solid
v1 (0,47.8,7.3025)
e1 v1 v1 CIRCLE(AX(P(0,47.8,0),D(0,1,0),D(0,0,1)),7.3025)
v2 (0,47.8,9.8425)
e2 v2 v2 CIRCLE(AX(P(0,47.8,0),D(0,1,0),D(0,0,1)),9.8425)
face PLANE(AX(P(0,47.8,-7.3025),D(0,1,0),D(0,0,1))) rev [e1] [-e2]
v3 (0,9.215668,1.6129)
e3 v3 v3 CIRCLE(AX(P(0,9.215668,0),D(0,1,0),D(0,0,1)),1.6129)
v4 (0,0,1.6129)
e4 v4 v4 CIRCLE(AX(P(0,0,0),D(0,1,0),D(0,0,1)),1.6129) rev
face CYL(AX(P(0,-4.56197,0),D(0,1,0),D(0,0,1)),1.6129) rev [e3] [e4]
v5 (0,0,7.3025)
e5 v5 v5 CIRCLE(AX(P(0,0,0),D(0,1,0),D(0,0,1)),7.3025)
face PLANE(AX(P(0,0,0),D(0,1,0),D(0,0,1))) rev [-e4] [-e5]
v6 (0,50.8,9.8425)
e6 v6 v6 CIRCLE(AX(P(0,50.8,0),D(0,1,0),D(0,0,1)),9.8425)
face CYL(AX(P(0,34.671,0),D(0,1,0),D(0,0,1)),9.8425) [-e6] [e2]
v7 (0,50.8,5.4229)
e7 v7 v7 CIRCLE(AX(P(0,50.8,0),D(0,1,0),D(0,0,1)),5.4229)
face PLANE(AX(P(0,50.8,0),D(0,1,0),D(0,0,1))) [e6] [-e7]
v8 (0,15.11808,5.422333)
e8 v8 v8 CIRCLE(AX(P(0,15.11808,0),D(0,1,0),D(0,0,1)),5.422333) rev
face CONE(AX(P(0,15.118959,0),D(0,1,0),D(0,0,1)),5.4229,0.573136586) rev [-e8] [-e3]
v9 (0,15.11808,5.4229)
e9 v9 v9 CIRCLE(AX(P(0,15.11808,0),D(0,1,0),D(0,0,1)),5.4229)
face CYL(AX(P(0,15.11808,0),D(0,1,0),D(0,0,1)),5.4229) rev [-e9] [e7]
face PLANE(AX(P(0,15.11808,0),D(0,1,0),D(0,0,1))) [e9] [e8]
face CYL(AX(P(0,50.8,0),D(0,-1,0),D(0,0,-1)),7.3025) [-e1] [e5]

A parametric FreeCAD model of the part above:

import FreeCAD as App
import Part
import Sketcher
Q = App.Units.Quantity

doc = App.newDocument("Part")
body = doc.addObject("PartDesign::Body", "Body")

# Sketch on XZ plane
sketch1 = doc.addObject("Sketcher::SketchObject", "Sketch")
body.addObject(sketch1)
sketch1.AttachmentSupport = (doc.XZ_Plane, [""])
sketch1.MapMode = "FlatFace"
sketch1.addGeometry(Part.Circle(App.Vector(0, 0, 0), App.Vector(0, 0, 1), 7), False)
sketch1.addConstraint([
    Sketcher.Constraint("Coincident", 0, 3, -1, 1),
    Sketcher.Constraint("Diameter", 0, Q("0.575 in")),
])
pad1 = doc.addObject("PartDesign::Pad", "Pad")
body.addObject(pad1)
pad1.Profile = sketch1
pad1.Length = Q("2 in")
pad1.Reversed = True

# Sketch on XZ plane
sketch2 = doc.addObject("Sketcher::SketchObject", "Sketch001")
body.addObject(sketch2)
sketch2.AttachmentSupport = (doc.XZ_Plane, [""])
sketch2.MapMode = "FlatFace"
sketch2.AttachmentOffset = App.Placement(App.Vector(0, 0, -2 * 25.4), App.Rotation())
sketch2.addGeometry(Part.Circle(App.Vector(0, 0, 0), App.Vector(0, 0, 1), 1.6), False)
sketch2.addConstraint([
    Sketcher.Constraint("Coincident", 0, 3, -1, 1),
    Sketcher.Constraint("Diameter", 0, Q("0.127 in")),
])
pocket1 = doc.addObject("PartDesign::Pocket", "Pocket")
body.addObject(pocket1)
pocket1.Profile = sketch2
pocket1.Length = Q("2 in")
pocket1.Reversed = True

# Sketch on XY plane
sketch3 = doc.addObject("Sketcher::SketchObject", "Sketch002")
body.addObject(sketch3)
sketch3.AttachmentSupport = (doc.XY_Plane, [""])
sketch3.MapMode = "FlatFace"
sketch3.addGeometry([
    Part.LineSegment(App.Vector(-5.4, 15.1, 0), App.Vector(-1.6, 9.2, 0)),
    Part.LineSegment(App.Vector(-1.6, 9.2, 0), App.Vector(-1.6, 15.1, 0)),
    Part.LineSegment(App.Vector(-1.6, 15.1, 0), App.Vector(-5.4, 15.1, 0)),
], False)
sketch3.addConstraint([
    Sketcher.Constraint("Coincident", 0, 2, 1, 1),
    Sketcher.Constraint("Coincident", 1, 2, 2, 1),
    Sketcher.Constraint("Coincident", 2, 2, 0, 1),
    Sketcher.Constraint("Vertical", 1),
    Sketcher.Constraint("Horizontal", 2),
    Sketcher.Constraint("DistanceX", 2, 2, 2, 1, Q("0.15 in")),
    Sketcher.Constraint("DistanceX", 0, 2, -1, 1, Q("0.0635 in")),
    Sketcher.Constraint("DistanceY", 1, 1, 1, 2, Q("5.903291 mm")),
    Sketcher.Constraint("DistanceY", -1, 1, 0, 2, Q("9.215668 mm")),
])
groove = doc.addObject("PartDesign::Groove", "Groove")
body.addObject(groove)
groove.Profile = sketch3
groove.ReferenceAxis = (sketch3, ["V_Axis"])
groove.Angle = 360

# Sketch on YZ plane
sketch4 = doc.addObject("Sketcher::SketchObject", "Sketch003")
body.addObject(sketch4)
sketch4.AttachmentSupport = (doc.YZ_Plane, [""])
sketch4.MapMode = "FlatFace"
sketch4.addGeometry([
    Part.LineSegment(App.Vector(50.8, -7.3, 0), App.Vector(47.8, -7.3, 0)),
    Part.LineSegment(App.Vector(47.8, -7.3, 0), App.Vector(47.8, -9.8, 0)),
    Part.LineSegment(App.Vector(47.8, -9.8, 0), App.Vector(50.8, -9.8, 0)),
    Part.LineSegment(App.Vector(50.8, -9.8, 0), App.Vector(50.8, -7.3, 0)),
], False)
sketch4.addConstraint([
    Sketcher.Constraint("Coincident", 0, 2, 1, 1),
    Sketcher.Constraint("Coincident", 1, 2, 2, 1),
    Sketcher.Constraint("Coincident", 2, 2, 3, 1),
    Sketcher.Constraint("Coincident", 3, 2, 0, 1),
    Sketcher.Constraint("Horizontal", 0),
    Sketcher.Constraint("Vertical", 1),
    Sketcher.Constraint("Horizontal", 2),
    Sketcher.Constraint("Vertical", 3),
    Sketcher.Constraint("DistanceY", 1, 2, 1, 1, Q("0.1 in")),
    Sketcher.Constraint("DistanceX", -1, 1, 2, 2, Q("2 in")),
    Sketcher.Constraint("DistanceX", 0, 2, 0, 1, Q("3 mm")),
    Sketcher.Constraint("DistanceY", 0, 2, -1, 1, Q("0.2875 in")),
])
revolution = doc.addObject("PartDesign::Revolution", "Revolution")
body.addObject(revolution)
revolution.Profile = sketch4
revolution.ReferenceAxis = (sketch4, ["H_Axis"])
revolution.Angle = 360

# Sketch on XZ plane
sketch5 = doc.addObject("Sketcher::SketchObject", "Sketch004")
body.addObject(sketch5)
sketch5.AttachmentSupport = (doc.XZ_Plane, [""])
sketch5.MapMode = "FlatFace"
sketch5.AttachmentOffset = App.Placement(App.Vector(0, 0, -2 * 25.4), App.Rotation())
sketch5.addGeometry(Part.Circle(App.Vector(0, 0, 0), App.Vector(0, 0, 1), 5), False)
sketch5.addConstraint([
    Sketcher.Constraint("Coincident", 0, 3, -1, 1),
    Sketcher.Constraint("Diameter", 0, Q("0.427 in")),
])
pocket2 = doc.addObject("PartDesign::Pocket", "Pocket001")
body.addObject(pocket2)
pocket2.Profile = sketch5
pocket2.Length = Q("1.4048 in")
pocket2.Reversed = True

doc.recompute()
